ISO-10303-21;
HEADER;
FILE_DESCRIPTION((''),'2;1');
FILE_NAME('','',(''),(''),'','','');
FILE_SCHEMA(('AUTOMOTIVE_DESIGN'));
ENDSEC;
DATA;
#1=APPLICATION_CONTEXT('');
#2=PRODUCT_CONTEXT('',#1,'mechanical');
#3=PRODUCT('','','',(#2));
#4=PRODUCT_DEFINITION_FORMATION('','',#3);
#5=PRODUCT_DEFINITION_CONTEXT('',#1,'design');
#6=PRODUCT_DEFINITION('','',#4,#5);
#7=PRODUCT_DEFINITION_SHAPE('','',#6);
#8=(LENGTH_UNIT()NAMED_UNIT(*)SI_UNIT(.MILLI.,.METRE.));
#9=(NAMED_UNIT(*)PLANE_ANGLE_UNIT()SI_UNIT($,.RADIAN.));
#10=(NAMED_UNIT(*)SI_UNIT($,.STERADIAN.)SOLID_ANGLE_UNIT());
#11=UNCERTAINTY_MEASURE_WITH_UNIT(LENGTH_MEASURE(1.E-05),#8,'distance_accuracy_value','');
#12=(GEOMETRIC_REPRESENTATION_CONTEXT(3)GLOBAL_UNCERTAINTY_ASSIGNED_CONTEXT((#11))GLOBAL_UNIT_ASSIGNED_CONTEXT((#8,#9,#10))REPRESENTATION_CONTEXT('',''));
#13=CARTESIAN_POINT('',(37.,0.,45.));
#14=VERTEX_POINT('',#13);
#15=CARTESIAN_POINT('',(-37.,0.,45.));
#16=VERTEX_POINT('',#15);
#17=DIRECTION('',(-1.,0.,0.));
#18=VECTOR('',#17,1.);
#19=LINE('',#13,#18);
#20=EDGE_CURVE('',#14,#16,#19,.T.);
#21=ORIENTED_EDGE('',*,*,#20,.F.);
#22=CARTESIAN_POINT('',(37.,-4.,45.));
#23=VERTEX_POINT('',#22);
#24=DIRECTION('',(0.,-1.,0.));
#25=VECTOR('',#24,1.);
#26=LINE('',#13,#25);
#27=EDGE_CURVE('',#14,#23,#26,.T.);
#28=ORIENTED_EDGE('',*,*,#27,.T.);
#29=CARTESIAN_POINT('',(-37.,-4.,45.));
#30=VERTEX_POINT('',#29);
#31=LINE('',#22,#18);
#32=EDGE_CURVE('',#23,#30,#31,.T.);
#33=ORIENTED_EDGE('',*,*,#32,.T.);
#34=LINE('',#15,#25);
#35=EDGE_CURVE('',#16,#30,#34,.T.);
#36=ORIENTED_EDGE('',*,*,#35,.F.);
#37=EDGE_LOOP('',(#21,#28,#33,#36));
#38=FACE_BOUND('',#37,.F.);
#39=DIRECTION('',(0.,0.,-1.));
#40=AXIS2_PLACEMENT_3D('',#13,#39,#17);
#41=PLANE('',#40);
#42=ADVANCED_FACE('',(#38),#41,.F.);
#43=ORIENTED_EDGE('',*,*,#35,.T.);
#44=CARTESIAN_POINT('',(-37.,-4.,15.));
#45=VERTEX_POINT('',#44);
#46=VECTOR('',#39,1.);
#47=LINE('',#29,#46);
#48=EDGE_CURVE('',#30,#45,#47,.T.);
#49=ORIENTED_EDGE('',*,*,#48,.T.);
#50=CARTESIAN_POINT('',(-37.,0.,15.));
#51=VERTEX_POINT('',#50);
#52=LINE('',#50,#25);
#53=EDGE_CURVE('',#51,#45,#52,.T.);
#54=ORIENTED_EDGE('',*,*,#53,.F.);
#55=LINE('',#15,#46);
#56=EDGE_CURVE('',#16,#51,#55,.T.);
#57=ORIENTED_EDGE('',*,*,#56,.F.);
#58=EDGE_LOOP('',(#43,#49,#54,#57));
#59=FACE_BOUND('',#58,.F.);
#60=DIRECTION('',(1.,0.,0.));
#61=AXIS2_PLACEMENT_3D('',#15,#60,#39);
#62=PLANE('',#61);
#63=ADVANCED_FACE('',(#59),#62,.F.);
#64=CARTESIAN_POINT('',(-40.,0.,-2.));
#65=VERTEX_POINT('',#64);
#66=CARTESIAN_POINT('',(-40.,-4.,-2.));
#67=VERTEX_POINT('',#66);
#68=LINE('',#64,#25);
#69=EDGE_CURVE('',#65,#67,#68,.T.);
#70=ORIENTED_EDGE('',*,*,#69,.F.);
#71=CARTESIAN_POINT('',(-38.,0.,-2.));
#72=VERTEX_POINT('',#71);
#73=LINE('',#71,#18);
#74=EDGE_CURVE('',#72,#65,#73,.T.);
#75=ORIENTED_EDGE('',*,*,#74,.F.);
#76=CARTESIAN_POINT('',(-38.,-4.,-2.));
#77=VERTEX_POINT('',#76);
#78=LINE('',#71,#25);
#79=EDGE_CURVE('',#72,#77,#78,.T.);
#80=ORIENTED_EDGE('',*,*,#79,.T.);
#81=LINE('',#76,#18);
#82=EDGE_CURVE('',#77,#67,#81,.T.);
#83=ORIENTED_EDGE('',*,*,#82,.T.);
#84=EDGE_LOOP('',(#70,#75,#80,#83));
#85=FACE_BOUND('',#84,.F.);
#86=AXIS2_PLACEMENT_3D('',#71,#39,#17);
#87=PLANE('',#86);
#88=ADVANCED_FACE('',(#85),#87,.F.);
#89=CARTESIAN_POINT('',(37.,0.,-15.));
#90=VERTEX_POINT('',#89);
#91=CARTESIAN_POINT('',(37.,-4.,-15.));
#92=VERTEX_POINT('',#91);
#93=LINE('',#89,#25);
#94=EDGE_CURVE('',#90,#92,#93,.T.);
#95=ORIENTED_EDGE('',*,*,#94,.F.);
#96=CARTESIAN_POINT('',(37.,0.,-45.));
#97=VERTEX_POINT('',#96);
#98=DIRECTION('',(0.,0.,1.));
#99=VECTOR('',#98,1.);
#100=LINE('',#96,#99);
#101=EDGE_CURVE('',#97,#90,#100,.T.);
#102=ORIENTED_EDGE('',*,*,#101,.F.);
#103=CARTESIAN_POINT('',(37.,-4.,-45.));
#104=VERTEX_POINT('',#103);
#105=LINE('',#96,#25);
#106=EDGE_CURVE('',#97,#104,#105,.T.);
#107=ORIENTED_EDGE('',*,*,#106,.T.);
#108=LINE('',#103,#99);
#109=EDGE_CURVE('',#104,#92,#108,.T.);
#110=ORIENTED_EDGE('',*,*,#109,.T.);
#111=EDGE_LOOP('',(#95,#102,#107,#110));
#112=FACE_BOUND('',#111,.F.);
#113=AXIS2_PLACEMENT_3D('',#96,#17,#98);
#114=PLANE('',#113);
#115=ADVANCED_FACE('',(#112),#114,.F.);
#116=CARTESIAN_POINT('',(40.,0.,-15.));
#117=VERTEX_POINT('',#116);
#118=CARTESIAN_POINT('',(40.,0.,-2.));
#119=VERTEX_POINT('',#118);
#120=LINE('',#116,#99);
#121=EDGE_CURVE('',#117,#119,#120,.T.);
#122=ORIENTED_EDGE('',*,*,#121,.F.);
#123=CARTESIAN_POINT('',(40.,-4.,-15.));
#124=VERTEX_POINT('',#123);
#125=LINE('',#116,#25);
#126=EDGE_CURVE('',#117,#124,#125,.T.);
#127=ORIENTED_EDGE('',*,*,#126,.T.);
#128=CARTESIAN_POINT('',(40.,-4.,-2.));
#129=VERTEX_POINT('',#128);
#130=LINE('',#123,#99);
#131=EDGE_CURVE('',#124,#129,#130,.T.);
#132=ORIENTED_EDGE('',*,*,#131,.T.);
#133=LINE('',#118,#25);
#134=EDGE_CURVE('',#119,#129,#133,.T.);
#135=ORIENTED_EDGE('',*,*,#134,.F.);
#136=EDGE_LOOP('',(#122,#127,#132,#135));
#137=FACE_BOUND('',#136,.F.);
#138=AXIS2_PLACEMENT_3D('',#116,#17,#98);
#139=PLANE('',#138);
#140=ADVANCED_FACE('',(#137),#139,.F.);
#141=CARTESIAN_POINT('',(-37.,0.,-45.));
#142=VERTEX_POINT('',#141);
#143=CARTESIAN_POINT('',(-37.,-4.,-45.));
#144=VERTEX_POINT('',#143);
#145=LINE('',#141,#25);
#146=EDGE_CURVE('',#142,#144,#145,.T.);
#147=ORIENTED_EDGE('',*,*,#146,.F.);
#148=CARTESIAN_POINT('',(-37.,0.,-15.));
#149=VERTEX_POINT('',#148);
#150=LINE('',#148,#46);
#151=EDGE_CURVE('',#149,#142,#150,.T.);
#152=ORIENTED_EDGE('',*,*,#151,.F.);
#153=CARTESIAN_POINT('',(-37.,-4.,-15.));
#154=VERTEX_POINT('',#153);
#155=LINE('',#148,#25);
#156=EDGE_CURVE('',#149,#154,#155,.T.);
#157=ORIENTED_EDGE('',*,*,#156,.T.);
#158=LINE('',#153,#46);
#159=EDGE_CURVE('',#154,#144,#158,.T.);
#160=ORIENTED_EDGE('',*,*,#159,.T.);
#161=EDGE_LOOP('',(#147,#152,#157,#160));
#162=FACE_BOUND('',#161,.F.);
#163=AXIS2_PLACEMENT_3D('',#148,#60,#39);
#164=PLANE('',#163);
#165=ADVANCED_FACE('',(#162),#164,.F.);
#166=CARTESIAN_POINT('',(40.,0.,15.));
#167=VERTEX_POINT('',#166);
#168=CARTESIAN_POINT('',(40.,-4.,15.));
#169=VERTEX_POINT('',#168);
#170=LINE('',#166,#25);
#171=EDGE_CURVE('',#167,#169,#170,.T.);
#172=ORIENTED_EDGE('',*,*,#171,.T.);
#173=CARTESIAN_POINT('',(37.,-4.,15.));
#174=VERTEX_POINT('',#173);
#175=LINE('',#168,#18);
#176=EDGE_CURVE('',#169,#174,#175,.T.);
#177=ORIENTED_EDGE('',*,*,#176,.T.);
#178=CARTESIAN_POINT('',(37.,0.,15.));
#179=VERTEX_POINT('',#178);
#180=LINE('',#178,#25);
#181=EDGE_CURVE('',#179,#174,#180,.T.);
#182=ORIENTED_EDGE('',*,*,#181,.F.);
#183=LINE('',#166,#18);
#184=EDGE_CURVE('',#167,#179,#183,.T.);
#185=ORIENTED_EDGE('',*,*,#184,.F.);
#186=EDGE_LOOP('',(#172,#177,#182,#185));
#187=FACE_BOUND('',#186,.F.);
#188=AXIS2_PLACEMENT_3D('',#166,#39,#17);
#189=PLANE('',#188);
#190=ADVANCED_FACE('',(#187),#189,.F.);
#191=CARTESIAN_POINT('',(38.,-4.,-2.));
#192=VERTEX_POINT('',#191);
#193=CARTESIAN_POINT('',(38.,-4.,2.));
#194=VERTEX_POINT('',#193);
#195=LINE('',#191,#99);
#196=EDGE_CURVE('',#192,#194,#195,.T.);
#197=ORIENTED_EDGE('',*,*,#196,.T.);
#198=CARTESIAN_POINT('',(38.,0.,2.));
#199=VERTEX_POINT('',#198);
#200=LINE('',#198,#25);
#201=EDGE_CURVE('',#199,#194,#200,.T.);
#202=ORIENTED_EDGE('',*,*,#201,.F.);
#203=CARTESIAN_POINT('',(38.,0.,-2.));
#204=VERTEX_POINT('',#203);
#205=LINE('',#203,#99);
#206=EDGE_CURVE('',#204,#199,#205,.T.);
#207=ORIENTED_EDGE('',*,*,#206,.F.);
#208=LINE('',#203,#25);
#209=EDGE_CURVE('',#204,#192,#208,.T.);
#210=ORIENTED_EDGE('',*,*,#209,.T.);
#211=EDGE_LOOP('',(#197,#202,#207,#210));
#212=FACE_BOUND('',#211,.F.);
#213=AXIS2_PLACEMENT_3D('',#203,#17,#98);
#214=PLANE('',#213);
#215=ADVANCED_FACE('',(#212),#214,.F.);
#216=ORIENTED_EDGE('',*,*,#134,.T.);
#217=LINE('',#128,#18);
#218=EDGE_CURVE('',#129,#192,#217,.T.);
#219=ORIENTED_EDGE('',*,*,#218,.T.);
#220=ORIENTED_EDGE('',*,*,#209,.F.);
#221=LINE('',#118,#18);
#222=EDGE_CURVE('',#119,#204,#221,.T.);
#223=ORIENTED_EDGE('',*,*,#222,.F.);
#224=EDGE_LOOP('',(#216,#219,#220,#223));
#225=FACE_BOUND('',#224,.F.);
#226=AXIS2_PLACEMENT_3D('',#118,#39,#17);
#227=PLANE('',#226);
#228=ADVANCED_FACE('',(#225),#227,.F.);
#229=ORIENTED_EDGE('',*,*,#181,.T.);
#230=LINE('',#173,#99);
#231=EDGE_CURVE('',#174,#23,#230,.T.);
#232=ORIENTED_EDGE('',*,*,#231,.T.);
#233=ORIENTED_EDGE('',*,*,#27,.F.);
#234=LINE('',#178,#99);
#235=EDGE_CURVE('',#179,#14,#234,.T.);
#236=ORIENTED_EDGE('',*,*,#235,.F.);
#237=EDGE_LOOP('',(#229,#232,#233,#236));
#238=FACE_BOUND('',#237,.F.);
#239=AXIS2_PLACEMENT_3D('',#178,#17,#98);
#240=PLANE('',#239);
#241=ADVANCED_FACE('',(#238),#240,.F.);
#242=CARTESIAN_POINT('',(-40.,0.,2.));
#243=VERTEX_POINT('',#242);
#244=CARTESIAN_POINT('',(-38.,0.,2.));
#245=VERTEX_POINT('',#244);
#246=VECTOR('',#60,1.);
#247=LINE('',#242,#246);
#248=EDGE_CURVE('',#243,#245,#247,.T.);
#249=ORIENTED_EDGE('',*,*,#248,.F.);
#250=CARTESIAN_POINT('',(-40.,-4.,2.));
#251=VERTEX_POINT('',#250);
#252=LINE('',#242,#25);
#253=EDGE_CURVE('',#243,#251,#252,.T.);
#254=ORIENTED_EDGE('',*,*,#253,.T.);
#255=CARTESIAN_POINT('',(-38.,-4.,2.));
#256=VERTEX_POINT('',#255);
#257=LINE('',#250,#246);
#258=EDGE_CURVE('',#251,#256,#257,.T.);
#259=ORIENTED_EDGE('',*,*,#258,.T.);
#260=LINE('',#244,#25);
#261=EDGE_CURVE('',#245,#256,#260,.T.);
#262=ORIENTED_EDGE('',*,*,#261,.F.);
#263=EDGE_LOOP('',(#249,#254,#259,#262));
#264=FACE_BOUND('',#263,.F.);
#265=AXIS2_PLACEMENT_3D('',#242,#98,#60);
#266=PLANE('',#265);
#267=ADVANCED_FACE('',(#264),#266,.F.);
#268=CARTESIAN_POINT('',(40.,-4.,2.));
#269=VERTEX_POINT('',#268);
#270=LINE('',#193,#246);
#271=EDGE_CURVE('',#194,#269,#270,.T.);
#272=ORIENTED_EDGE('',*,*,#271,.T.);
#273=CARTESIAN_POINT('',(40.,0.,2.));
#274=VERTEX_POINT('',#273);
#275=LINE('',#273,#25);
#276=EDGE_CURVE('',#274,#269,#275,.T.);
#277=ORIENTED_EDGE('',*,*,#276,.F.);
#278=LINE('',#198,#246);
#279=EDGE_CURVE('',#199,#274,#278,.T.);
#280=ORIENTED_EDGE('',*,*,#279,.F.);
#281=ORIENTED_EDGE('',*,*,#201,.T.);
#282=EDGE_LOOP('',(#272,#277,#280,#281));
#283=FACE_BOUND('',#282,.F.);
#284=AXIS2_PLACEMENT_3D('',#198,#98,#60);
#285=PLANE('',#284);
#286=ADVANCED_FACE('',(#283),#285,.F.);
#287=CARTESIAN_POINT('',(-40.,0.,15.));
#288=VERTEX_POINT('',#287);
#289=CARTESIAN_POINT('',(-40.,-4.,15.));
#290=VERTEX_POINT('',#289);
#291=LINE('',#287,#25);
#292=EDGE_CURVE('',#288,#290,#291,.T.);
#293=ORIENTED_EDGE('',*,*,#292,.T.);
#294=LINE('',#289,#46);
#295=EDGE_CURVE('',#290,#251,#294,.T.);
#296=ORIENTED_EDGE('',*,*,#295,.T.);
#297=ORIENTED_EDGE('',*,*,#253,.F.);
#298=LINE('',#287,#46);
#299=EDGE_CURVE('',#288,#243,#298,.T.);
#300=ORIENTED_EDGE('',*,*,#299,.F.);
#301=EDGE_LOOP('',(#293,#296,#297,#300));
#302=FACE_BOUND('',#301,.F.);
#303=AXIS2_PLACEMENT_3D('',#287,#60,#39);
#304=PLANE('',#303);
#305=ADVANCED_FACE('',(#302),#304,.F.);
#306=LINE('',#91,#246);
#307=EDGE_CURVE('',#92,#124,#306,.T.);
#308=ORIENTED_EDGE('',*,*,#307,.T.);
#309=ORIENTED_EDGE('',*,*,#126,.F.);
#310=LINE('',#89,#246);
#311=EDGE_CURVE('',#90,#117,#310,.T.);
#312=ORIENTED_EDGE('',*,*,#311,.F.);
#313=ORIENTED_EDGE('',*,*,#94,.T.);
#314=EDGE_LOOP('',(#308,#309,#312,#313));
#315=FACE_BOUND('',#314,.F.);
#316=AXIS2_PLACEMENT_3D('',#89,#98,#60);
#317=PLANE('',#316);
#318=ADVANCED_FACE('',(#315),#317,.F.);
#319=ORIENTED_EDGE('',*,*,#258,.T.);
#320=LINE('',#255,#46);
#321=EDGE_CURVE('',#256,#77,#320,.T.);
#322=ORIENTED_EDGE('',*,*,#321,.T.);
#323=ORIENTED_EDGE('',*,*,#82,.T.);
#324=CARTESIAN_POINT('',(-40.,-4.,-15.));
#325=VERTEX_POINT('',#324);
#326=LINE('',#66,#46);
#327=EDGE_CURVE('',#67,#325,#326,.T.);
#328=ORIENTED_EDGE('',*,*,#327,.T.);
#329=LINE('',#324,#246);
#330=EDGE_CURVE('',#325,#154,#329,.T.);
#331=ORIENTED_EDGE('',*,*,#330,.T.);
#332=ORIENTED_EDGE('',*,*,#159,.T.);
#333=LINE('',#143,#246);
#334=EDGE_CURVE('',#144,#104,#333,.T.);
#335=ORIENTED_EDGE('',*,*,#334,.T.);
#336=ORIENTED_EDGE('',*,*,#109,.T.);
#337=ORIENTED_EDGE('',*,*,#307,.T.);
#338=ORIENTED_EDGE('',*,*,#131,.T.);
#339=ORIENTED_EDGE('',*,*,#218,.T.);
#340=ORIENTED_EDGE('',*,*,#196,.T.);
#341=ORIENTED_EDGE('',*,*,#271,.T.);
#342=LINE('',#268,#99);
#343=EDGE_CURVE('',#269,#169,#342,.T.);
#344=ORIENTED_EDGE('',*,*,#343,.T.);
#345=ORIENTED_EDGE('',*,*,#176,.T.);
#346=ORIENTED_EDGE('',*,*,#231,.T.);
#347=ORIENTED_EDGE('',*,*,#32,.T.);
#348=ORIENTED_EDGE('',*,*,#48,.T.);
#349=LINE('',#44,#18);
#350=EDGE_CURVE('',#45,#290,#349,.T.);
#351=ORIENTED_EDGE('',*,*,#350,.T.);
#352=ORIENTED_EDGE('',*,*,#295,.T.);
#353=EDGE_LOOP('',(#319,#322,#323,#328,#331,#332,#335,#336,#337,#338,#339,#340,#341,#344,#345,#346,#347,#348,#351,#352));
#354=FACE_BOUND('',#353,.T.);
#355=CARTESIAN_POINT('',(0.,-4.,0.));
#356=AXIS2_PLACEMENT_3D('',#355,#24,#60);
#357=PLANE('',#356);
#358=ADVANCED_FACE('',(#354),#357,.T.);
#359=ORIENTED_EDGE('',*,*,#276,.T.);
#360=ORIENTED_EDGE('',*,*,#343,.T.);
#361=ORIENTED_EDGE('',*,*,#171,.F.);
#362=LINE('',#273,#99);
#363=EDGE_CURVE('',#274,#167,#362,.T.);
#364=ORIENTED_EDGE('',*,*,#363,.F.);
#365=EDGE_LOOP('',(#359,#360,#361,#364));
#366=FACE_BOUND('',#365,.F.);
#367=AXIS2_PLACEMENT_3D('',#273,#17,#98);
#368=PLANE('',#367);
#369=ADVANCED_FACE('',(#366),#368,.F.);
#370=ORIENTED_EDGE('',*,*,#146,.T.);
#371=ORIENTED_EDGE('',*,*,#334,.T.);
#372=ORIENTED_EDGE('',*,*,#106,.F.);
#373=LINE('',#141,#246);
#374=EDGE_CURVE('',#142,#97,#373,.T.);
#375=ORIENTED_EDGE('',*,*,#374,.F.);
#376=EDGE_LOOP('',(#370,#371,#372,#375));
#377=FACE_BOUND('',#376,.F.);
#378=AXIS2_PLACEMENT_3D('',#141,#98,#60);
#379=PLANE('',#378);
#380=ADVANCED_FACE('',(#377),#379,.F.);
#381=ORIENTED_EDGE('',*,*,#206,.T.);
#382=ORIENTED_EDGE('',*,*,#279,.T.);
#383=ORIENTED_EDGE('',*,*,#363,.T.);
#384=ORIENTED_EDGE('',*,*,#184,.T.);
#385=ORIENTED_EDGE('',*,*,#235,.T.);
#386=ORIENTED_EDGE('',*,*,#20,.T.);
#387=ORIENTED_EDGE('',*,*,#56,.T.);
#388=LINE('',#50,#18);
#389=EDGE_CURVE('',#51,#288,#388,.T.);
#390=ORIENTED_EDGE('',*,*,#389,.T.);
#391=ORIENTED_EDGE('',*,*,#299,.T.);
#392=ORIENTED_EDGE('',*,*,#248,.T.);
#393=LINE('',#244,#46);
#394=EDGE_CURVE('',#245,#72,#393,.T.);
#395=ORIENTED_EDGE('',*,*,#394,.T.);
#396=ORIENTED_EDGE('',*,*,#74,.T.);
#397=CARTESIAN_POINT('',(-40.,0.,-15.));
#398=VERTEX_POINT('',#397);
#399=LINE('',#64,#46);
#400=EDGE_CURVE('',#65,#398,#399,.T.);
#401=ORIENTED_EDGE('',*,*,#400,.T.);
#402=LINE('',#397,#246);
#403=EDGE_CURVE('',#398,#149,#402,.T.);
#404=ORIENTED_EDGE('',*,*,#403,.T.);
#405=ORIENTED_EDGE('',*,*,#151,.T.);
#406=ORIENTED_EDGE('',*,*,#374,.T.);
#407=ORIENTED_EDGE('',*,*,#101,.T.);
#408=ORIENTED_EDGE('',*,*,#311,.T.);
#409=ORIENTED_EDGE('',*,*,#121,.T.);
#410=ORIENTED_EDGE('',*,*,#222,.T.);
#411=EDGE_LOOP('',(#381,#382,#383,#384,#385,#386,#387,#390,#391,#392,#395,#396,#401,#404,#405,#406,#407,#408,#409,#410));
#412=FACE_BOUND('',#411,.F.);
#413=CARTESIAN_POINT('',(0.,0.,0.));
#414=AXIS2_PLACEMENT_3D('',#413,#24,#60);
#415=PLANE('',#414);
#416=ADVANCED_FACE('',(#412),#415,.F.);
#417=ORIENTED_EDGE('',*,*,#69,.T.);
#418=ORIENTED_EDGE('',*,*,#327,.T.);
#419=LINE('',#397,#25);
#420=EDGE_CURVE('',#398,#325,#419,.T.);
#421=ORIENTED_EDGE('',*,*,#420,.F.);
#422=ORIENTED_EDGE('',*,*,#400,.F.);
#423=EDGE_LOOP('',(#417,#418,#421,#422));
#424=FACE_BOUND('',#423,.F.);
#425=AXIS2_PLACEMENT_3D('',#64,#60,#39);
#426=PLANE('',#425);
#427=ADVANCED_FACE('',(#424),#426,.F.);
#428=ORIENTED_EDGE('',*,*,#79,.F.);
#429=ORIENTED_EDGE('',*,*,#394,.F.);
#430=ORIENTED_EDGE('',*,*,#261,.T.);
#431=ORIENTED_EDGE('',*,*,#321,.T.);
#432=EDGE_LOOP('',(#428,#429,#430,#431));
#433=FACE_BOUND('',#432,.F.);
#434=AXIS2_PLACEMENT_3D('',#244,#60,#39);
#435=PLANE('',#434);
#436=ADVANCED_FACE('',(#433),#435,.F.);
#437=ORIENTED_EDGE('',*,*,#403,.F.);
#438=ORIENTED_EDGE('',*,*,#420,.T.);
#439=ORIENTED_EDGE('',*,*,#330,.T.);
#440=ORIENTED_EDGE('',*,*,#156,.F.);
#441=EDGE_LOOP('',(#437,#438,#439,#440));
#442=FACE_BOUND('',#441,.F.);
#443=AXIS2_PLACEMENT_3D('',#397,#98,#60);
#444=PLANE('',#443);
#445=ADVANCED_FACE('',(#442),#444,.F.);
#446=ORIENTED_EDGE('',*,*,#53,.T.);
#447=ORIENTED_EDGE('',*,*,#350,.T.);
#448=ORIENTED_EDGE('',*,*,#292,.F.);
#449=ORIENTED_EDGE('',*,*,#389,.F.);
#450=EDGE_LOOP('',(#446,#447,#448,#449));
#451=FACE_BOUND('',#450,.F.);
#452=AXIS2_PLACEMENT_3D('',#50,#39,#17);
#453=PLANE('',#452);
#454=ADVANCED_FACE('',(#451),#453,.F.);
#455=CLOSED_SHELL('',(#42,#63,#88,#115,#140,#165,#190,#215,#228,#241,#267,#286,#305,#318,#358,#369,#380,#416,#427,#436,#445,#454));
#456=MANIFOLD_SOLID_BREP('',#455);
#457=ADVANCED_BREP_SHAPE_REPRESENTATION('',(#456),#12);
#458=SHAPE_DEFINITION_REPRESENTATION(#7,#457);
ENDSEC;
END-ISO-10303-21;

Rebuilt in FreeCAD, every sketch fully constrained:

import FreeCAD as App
import Part
import Sketcher
from FreeCAD import Vector

doc = App.newDocument("Part")
body = doc.addObject("PartDesign::Body", "Body")

# Sketch on XZ plane
sketch1 = body.newObject("Sketcher::SketchObject", "Sketch")
sketch1.AttachmentSupport = (doc.getObject("XZ_Plane"), [""])
sketch1.MapMode = "FlatFace"
sketch1.addGeometry([
    Part.LineSegment(Vector(38, 2, 0), Vector(40, 2, 0)),  # 0
    Part.LineSegment(Vector(40, 2, 0), Vector(40, 15, 0)),  # 1
    Part.LineSegment(Vector(40, 15, 0), Vector(37, 15, 0)),  # 2
    Part.LineSegment(Vector(37, 15, 0), Vector(37, 45, 0)),  # 3
    Part.LineSegment(Vector(37, 45, 0), Vector(-37, 45, 0)),  # 4
    Part.LineSegment(Vector(-37, 45, 0), Vector(-37, 15, 0)),  # 5
    Part.LineSegment(Vector(-37, 15, 0), Vector(-40, 15, 0)),  # 6
    Part.LineSegment(Vector(-40, 15, 0), Vector(-40, 2, 0)),  # 7
    Part.LineSegment(Vector(-40, 2, 0), Vector(-38, 2, 0)),  # 8
    Part.LineSegment(Vector(-38, 2, 0), Vector(-38, -2, 0)),  # 9
    Part.LineSegment(Vector(-38, -2, 0), Vector(-40, -2, 0)),  # 10
    Part.LineSegment(Vector(-40, -2, 0), Vector(-40, -15, 0)),  # 11
    Part.LineSegment(Vector(-40, -15, 0), Vector(-37, -15, 0)),  # 12
    Part.LineSegment(Vector(-37, -15, 0), Vector(-37, -45, 0)),  # 13
    Part.LineSegment(Vector(-37, -45, 0), Vector(37, -45, 0)),  # 14
    Part.LineSegment(Vector(37, -45, 0), Vector(37, -15, 0)),  # 15
    Part.LineSegment(Vector(37, -15, 0), Vector(40, -15, 0)),  # 16
    Part.LineSegment(Vector(40, -15, 0), Vector(40, -2, 0)),  # 17
    Part.LineSegment(Vector(40, -2, 0), Vector(38, -2, 0)),  # 18
    Part.LineSegment(Vector(38, -2, 0), Vector(38, 2, 0)),  # 19
], False)
sketch1.addConstraint([
    Sketcher.Constraint("Coincident", 0, 2, 1, 1),
    Sketcher.Constraint("Coincident", 1, 2, 2, 1),
    Sketcher.Constraint("Coincident", 2, 2, 3, 1),
    Sketcher.Constraint("Coincident", 3, 2, 4, 1),
    Sketcher.Constraint("Coincident", 4, 2, 5, 1),
    Sketcher.Constraint("Coincident", 5, 2, 6, 1),
    Sketcher.Constraint("Coincident", 6, 2, 7, 1),
    Sketcher.Constraint("Coincident", 7, 2, 8, 1),
    Sketcher.Constraint("Coincident", 8, 2, 9, 1),
    Sketcher.Constraint("Coincident", 9, 2, 10, 1),
    Sketcher.Constraint("Coincident", 10, 2, 11, 1),
    Sketcher.Constraint("Coincident", 11, 2, 12, 1),
    Sketcher.Constraint("Coincident", 12, 2, 13, 1),
    Sketcher.Constraint("Coincident", 13, 2, 14, 1),
    Sketcher.Constraint("Coincident", 14, 2, 15, 1),
    Sketcher.Constraint("Coincident", 15, 2, 16, 1),
    Sketcher.Constraint("Coincident", 16, 2, 17, 1),
    Sketcher.Constraint("Coincident", 17, 2, 18, 1),
    Sketcher.Constraint("Coincident", 18, 2, 19, 1),
    Sketcher.Constraint("Coincident", 19, 2, 0, 1),
    Sketcher.Constraint("Horizontal", 0),
    Sketcher.Constraint("Vertical", 1),
    Sketcher.Constraint("Horizontal", 2),
    Sketcher.Constraint("Vertical", 3),
    Sketcher.Constraint("Horizontal", 4),
    Sketcher.Constraint("Vertical", 5),
    Sketcher.Constraint("Horizontal", 6),
    Sketcher.Constraint("Vertical", 7),
    Sketcher.Constraint("Horizontal", 8),
    Sketcher.Constraint("Vertical", 9),
    Sketcher.Constraint("Horizontal", 10),
    Sketcher.Constraint("Vertical", 11),
    Sketcher.Constraint("Horizontal", 12),
    Sketcher.Constraint("Vertical", 13),
    Sketcher.Constraint("Horizontal", 14),
    Sketcher.Constraint("Vertical", 15),
    Sketcher.Constraint("Horizontal", 16),
    Sketcher.Constraint("Vertical", 17),
    Sketcher.Constraint("Horizontal", 18),
    Sketcher.Constraint("Vertical", 19),
    Sketcher.Constraint("Symmetric", 0, 2, 10, 2, -1, 1),
    Sketcher.Constraint("Symmetric", 2, 2, 12, 2, -1, 1),
    Sketcher.Constraint("Symmetric", 4, 2, 14, 2, -1, 1),
    Sketcher.Constraint("Symmetric", 6, 2, 16, 2, -1, 1),
    Sketcher.Constraint("Symmetric", 8, 2, 18, 2, -1, 1),
    Sketcher.Constraint("Symmetric", 2, 2, 5, 2, -2),
    Sketcher.Constraint("Symmetric", 0, 2, 7, 2, -2),
    Sketcher.Constraint("DistanceX", 0, 1, 0, 2, 2.0),
    Sketcher.Constraint("DistanceX", 2, 2, 2, 1, 3.0),
    Sketcher.Constraint("DistanceX", 4, 2, 4, 1, 74.0),
    Sketcher.Constraint("DistanceY", 1, 1, 1, 2, 13.0),
    Sketcher.Constraint("DistanceY", 3, 1, 3, 2, 30.0),
    Sketcher.Constraint("DistanceY", 9, 2, 9, 1, 4.0),
])
pad1 = body.newObject("PartDesign::Pad", "Pad")
pad1.Profile = sketch1
pad1.Length = 4

doc.recompute()
